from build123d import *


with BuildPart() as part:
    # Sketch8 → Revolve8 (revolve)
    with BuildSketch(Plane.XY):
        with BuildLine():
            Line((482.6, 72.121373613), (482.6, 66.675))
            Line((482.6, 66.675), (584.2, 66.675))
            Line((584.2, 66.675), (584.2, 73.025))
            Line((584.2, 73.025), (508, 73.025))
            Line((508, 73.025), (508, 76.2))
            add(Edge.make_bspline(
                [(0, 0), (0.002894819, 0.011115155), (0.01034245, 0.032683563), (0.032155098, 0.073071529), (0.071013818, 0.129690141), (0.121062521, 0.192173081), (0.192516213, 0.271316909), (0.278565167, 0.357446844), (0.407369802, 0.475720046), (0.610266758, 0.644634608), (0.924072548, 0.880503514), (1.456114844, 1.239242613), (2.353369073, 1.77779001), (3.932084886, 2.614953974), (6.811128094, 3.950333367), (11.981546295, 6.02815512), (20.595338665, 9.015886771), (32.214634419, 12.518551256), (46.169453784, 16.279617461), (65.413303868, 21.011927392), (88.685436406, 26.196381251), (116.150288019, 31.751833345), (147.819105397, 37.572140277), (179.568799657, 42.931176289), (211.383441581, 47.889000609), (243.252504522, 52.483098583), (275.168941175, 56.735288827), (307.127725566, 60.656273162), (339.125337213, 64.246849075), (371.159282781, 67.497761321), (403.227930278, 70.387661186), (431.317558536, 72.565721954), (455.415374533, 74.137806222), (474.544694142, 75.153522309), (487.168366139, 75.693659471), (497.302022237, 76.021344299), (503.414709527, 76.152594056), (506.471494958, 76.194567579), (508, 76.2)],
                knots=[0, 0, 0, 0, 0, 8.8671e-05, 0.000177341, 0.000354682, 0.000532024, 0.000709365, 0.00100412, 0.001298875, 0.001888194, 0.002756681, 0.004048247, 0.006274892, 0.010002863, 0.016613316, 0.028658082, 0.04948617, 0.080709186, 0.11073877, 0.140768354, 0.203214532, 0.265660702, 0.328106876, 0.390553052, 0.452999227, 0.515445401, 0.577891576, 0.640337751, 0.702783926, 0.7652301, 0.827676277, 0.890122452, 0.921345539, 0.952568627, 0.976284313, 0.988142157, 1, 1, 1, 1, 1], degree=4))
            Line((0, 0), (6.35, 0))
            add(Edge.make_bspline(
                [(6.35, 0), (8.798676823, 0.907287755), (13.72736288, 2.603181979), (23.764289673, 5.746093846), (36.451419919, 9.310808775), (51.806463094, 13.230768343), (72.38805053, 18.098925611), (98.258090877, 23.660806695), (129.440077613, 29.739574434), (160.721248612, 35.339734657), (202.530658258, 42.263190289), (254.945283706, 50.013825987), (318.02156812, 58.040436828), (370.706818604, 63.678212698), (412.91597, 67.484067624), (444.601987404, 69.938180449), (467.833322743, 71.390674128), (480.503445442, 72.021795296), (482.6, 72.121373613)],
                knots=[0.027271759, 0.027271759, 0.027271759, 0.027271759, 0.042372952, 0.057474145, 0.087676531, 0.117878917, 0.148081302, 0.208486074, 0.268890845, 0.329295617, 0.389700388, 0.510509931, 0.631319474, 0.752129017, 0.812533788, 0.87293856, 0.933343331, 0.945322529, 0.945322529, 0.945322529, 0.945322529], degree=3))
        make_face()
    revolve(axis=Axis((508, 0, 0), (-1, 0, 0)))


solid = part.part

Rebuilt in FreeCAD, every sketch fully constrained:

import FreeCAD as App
import Part
import Sketcher
Q = App.Units.Quantity

doc = App.newDocument("Part")
body = doc.addObject("PartDesign::Body", "Body")

# Sketch on XY plane
sketch1 = body.newObject("Sketcher::SketchObject", "Sketch")
sketch1.AttachmentSupport = (doc.getObject("XY_Plane"), [""])
sketch1.MapMode = "FlatFace"
sketch1.addGeometry(Part.LineSegment(App.Vector(482.6, 72.121374, 0), App.Vector(482.6, 66.675, 0)), False)
sketch1.addGeometry(Part.LineSegment(App.Vector(482.6, 66.675, 0), App.Vector(584.2, 66.675, 0)), False)
sketch1.addGeometry(Part.LineSegment(App.Vector(584.2, 66.675, 0), App.Vector(584.2, 73.025, 0)), False)
sketch1.addGeometry(Part.LineSegment(App.Vector(584.2, 73.025, 0), App.Vector(508, 73.025, 0)), False)
sketch1.addGeometry(Part.LineSegment(App.Vector(508, 73.025, 0), App.Vector(508, 76.2, 0)), False)
sketch1.addGeometry(Part.BSplineCurve([App.Vector(0, 0, 0), App.Vector(0.002895, 0.011115, 0), App.Vector(0.010342, 0.032684, 0), App.Vector(0.032155, 0.073072, 0), App.Vector(0.071014, 0.12969, 0), App.Vector(0.121063, 0.192173, 0), App.Vector(0.192516, 0.271317, 0), App.Vector(0.278565, 0.357447, 0), App.Vector(0.40737, 0.47572, 0), App.Vector(0.610267, 0.644635, 0), App.Vector(0.924073, 0.880504, 0), App.Vector(1.456115, 1.239243, 0), App.Vector(2.353369, 1.77779, 0), App.Vector(3.932085, 2.614954, 0), App.Vector(6.811128, 3.950333, 0), App.Vector(11.981546, 6.028155, 0), App.Vector(20.595339, 9.015887, 0), App.Vector(32.214634, 12.518551, 0), App.Vector(46.169454, 16.279617, 0), App.Vector(65.413304, 21.011927, 0), App.Vector(88.685436, 26.196381, 0), App.Vector(116.150288, 31.751833, 0), App.Vector(147.819105, 37.57214, 0), App.Vector(179.5688, 42.931176, 0), App.Vector(211.383442, 47.889001, 0), App.Vector(243.252505, 52.483099, 0), App.Vector(275.168941, 56.735289, 0), App.Vector(307.127726, 60.656273, 0), App.Vector(339.125337, 64.246849, 0), App.Vector(371.159283, 67.497761, 0), App.Vector(403.22793, 70.387661, 0), App.Vector(431.317559, 72.565722, 0), App.Vector(455.415375, 74.137806, 0), App.Vector(474.544694, 75.153522, 0), App.Vector(487.168366, 75.693659, 0), App.Vector(497.302022, 76.021344, 0), App.Vector(503.41471, 76.152594, 0), App.Vector(506.471495, 76.194568, 0), App.Vector(508, 76.2, 0)], [5, 1, 1, 1, 1, 1, 1, 1, 1, 1, 1, 1, 1, 1, 1, 1, 1, 1, 1, 1, 1, 1, 1, 1, 1, 1, 1, 1, 1, 1, 1, 1, 1, 1, 1, 5], [0, 0.000088671, 0.000177341, 0.000354682, 0.000532024, 0.000709365, 0.00100412, 0.001298875, 0.001888194, 0.002756681, 0.004048247, 0.006274892, 0.010002863, 0.016613316, 0.028658082, 0.04948617, 0.080709186, 0.11073877, 0.140768354, 0.203214532, 0.265660702, 0.328106876, 0.390553052, 0.452999227, 0.515445401, 0.577891576, 0.640337751, 0.702783926, 0.7652301, 0.827676277, 0.890122452, 0.921345539, 0.952568627, 0.976284313, 0.988142157, 1], False, 4, [1, 1, 1, 1, 1, 1, 1, 1, 1, 1, 1, 1, 1, 1, 1, 1, 1, 1, 1, 1, 1, 1, 1, 1, 1, 1, 1, 1, 1, 1, 1, 1, 1, 1, 1, 1, 1, 1, 1], False), False)
sketch1.addGeometry(Part.LineSegment(App.Vector(0, 0, 0), App.Vector(6.35, 0, 0)), False)
sketch1.addGeometry(Part.BSplineCurve([App.Vector(6.35, 0, 0), App.Vector(8.798677, 0.907288, 0), App.Vector(13.727363, 2.603182, 0), App.Vector(23.76429, 5.746094, 0), App.Vector(36.45142, 9.310809, 0), App.Vector(51.806463, 13.230768, 0), App.Vector(72.388051, 18.098926, 0), App.Vector(98.258091, 23.660807, 0), App.Vector(129.440078, 29.739574, 0), App.Vector(160.721249, 35.339735, 0), App.Vector(202.530658, 42.26319, 0), App.Vector(254.945284, 50.013826, 0), App.Vector(318.021568, 58.040437, 0), App.Vector(370.706819, 63.678213, 0), App.Vector(412.91597, 67.484068, 0), App.Vector(444.601987, 69.93818, 0), App.Vector(467.833323, 71.390674, 0), App.Vector(480.503445, 72.021795, 0), App.Vector(482.6, 72.121374, 0)], [4, 1, 1, 1, 1, 1, 1, 1, 1, 1, 1, 1, 1, 1, 1, 1, 4], [0.027271759, 0.042372952, 0.057474145, 0.087676531, 0.117878917, 0.148081302, 0.208486074, 0.268890845, 0.329295617, 0.389700388, 0.510509931, 0.631319474, 0.752129017, 0.812533788, 0.87293856, 0.933343331, 0.945322529], False, 3, [1, 1, 1, 1, 1, 1, 1, 1, 1, 1, 1, 1, 1, 1, 1, 1, 1, 1, 1], False), False)
sketch1.addConstraint(Sketcher.Constraint("Block", 5))
sketch1.addConstraint(Sketcher.Constraint("Block", 7))
sketch1.addConstraint(Sketcher.Constraint("Coincident", 0, 2, 1, 1))
sketch1.addConstraint(Sketcher.Constraint("Coincident", 1, 2, 2, 1))
sketch1.addConstraint(Sketcher.Constraint("Coincident", 2, 2, 3, 1))
sketch1.addConstraint(Sketcher.Constraint("Coincident", 3, 2, 4, 1))
sketch1.addConstraint(Sketcher.Constraint("Coincident", 4, 2, 5, 2))
sketch1.addConstraint(Sketcher.Constraint("Coincident", 5, 1, 6, 1))
sketch1.addConstraint(Sketcher.Constraint("Coincident", 6, 2, 7, 1))
sketch1.addConstraint(Sketcher.Constraint("Coincident", 7, 2, 0, 1))
sketch1.addConstraint(Sketcher.Constraint("Vertical", 0))
sketch1.addConstraint(Sketcher.Constraint("Horizontal", 1))
sketch1.addConstraint(Sketcher.Constraint("Vertical", 2))
sketch1.addConstraint(Sketcher.Constraint("Horizontal", 3))
sketch1.addConstraint(Sketcher.Constraint("Vertical", 4))
sketch1.addConstraint(Sketcher.Constraint("DistanceX", 1, 1, 1, 2, Q("4 in")))
sketch1.addConstraint(Sketcher.Constraint("DistanceY", 2, 1, 2, 2, Q("0.25 in")))
sketch1.addConstraint(Sketcher.Constraint("DistanceY", 4, 1, 4, 2, Q("0.125 in")))
revolution = body.newObject("PartDesign::Revolution", "Revolution")
revolution.Profile = sketch1
revolution.ReferenceAxis = (sketch1, ["H_Axis"])
revolution.Angle = 360

doc.recompute()
